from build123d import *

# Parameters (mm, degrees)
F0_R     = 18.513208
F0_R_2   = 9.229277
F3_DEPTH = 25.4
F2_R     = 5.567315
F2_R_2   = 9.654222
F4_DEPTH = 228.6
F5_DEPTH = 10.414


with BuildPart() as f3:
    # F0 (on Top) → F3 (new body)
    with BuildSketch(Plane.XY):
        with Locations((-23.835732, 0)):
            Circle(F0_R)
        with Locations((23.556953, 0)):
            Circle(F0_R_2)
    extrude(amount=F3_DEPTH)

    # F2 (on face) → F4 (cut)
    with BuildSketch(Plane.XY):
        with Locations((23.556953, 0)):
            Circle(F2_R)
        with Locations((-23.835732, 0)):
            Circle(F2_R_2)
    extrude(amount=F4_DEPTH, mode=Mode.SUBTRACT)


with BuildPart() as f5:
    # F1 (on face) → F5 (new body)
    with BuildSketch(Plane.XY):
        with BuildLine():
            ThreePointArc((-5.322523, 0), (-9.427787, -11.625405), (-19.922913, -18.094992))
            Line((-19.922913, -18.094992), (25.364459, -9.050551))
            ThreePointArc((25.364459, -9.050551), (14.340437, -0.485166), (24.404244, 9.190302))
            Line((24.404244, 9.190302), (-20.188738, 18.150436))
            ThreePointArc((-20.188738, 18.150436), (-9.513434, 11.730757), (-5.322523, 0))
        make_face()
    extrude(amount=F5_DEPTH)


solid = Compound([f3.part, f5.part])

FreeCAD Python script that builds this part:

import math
import FreeCAD as App
import Part
import Sketcher

V = App.Vector
Q = App.Units.Quantity

doc = App.newDocument("Part")
body = doc.addObject("PartDesign::Body", "Body")
body.AllowCompound = True

# Sketch on XY plane
sketch1 = body.newObject("Sketcher::SketchObject", "Sketch")
sketch1.AttachmentSupport = (doc.getObject("XY_Plane"), [""])
sketch1.MapMode = "FlatFace"
sketch1.addGeometry([
    Part.Circle(V(-24, 0, 0), V(0, 0, 1), 19),
    Part.Circle(V(24, 0, 0), V(0, 0, 1), 9),
], False)
sketch1.addConstraint([
    Sketcher.Constraint("PointOnObject", 0, 3, -1),
    Sketcher.Constraint("PointOnObject", 1, 3, -1),
    Sketcher.Constraint("Diameter", 0, Q("37.026416 mm")),
    Sketcher.Constraint("Diameter", 1, Q("18.458554 mm")),
    Sketcher.Constraint("DistanceX", 0, 3, -1, 1, Q("23.835732 mm")),
    Sketcher.Constraint("DistanceX", -1, 1, 1, 3, Q("23.556953 mm")),
])
pad1 = body.newObject("PartDesign::Pad", "Pad")
pad1.Profile = sketch1
pad1.Length = Q("1 in")

# Sketch on XY plane
sketch2 = body.newObject("Sketcher::SketchObject", "Sketch001")
sketch2.AttachmentSupport = (doc.getObject("XY_Plane"), [""])
sketch2.MapMode = "FlatFace"
sketch2.addGeometry([
    Part.Circle(V(24, 0, 0), V(0, 0, 1), 6),
    Part.Circle(V(-24, 0, 0), V(0, 0, 1), 10),
], False)
sketch2.addConstraint([
    Sketcher.Constraint("PointOnObject", 0, 3, -1),
    Sketcher.Constraint("PointOnObject", 1, 3, -1),
    Sketcher.Constraint("Diameter", 0, Q("11.13463 mm")),
    Sketcher.Constraint("Diameter", 1, Q("19.308444 mm")),
    Sketcher.Constraint("DistanceX", 1, 3, -1, 1, Q("23.835732 mm")),
    Sketcher.Constraint("DistanceX", -1, 1, 0, 3, Q("23.556953 mm")),
])
pocket1 = body.newObject("PartDesign::Pocket", "Pocket")
pocket1.Profile = sketch2
pocket1.Length = Q("9 in")
pocket1.Reversed = True
body2 = doc.addObject("PartDesign::Body", "Body001")

# Sketch on XY plane
sketch3 = body2.newObject("Sketcher::SketchObject", "Sketch002")
sketch3.AttachmentSupport = (doc.getObject("XY_Plane001"), [""])
sketch3.MapMode = "FlatFace"
sketch3.addGeometry([
    Part.ArcOfCircle(Part.Circle(V(-23.83573, -0.000001, 0), V(0, 0, 1), 18.513207), math.radians(-77.798363), math.radians(0.000004)),  # 0
    Part.LineSegment(V(-19.922913, -18.094992, 0), V(25.364459, -9.050551, 0)),  # 1
    Part.ArcOfCircle(Part.Circle(V(23.556953, 0, 0), V(0, 0, 1), 9.229277), math.radians(84.732561), math.radians(281.29408)),  # 2
    Part.LineSegment(V(24.404244, 9.190302, 0), V(-20.188738, 18.150436, 0)),  # 3
    Part.ArcOfCircle(Part.Circle(V(-23.835734, -0.000002, 0), V(0, 0, 1), 18.513211), math.radians(0.000005), math.radians(78.638756)),  # 4
], False)
sketch3.addConstraint([
    Sketcher.Constraint("Coincident", 0, 1, 1, 1),
    Sketcher.Constraint("Coincident", 1, 2, 2, 2),
    Sketcher.Constraint("Coincident", 2, 1, 3, 1),
    Sketcher.Constraint("Coincident", 3, 2, 4, 2),
    Sketcher.Constraint("Coincident", 4, 1, 0, 2),
    Sketcher.Constraint("Coincident", 4, 3, 0, 3),
    Sketcher.Constraint("PointOnObject", 0, 3, -1),
    Sketcher.Constraint("PointOnObject", 2, 3, -1),
    Sketcher.Constraint("PointOnObject", 4, 1, -1),
    Sketcher.Constraint("Radius", 4, Q("18.513211 mm")),
    Sketcher.Constraint("Radius", 2, Q("9.229277 mm")),
    Sketcher.Constraint("DistanceY", 2, 3, 2, 1, Q("9.190302 mm")),
    Sketcher.Constraint("Distance", 3, Q("45.484262 mm")),
    Sketcher.Constraint("DistanceX", 0, 3, -1, 1, Q("23.83573 mm")),
    Sketcher.Constraint("DistanceX", -1, 1, 1, 2, Q("25.364459 mm")),
    Sketcher.Constraint("DistanceY", 1, 2, -1, 1, Q("9.050551 mm")),
    Sketcher.Constraint("DistanceY", 0, 1, 0, 3, Q("18.094991 mm")),
])
pad2 = body2.newObject("PartDesign::Pad", "Pad001")
pad2.Profile = sketch3
pad2.Length = Q("0.41 in")

doc.recompute()
